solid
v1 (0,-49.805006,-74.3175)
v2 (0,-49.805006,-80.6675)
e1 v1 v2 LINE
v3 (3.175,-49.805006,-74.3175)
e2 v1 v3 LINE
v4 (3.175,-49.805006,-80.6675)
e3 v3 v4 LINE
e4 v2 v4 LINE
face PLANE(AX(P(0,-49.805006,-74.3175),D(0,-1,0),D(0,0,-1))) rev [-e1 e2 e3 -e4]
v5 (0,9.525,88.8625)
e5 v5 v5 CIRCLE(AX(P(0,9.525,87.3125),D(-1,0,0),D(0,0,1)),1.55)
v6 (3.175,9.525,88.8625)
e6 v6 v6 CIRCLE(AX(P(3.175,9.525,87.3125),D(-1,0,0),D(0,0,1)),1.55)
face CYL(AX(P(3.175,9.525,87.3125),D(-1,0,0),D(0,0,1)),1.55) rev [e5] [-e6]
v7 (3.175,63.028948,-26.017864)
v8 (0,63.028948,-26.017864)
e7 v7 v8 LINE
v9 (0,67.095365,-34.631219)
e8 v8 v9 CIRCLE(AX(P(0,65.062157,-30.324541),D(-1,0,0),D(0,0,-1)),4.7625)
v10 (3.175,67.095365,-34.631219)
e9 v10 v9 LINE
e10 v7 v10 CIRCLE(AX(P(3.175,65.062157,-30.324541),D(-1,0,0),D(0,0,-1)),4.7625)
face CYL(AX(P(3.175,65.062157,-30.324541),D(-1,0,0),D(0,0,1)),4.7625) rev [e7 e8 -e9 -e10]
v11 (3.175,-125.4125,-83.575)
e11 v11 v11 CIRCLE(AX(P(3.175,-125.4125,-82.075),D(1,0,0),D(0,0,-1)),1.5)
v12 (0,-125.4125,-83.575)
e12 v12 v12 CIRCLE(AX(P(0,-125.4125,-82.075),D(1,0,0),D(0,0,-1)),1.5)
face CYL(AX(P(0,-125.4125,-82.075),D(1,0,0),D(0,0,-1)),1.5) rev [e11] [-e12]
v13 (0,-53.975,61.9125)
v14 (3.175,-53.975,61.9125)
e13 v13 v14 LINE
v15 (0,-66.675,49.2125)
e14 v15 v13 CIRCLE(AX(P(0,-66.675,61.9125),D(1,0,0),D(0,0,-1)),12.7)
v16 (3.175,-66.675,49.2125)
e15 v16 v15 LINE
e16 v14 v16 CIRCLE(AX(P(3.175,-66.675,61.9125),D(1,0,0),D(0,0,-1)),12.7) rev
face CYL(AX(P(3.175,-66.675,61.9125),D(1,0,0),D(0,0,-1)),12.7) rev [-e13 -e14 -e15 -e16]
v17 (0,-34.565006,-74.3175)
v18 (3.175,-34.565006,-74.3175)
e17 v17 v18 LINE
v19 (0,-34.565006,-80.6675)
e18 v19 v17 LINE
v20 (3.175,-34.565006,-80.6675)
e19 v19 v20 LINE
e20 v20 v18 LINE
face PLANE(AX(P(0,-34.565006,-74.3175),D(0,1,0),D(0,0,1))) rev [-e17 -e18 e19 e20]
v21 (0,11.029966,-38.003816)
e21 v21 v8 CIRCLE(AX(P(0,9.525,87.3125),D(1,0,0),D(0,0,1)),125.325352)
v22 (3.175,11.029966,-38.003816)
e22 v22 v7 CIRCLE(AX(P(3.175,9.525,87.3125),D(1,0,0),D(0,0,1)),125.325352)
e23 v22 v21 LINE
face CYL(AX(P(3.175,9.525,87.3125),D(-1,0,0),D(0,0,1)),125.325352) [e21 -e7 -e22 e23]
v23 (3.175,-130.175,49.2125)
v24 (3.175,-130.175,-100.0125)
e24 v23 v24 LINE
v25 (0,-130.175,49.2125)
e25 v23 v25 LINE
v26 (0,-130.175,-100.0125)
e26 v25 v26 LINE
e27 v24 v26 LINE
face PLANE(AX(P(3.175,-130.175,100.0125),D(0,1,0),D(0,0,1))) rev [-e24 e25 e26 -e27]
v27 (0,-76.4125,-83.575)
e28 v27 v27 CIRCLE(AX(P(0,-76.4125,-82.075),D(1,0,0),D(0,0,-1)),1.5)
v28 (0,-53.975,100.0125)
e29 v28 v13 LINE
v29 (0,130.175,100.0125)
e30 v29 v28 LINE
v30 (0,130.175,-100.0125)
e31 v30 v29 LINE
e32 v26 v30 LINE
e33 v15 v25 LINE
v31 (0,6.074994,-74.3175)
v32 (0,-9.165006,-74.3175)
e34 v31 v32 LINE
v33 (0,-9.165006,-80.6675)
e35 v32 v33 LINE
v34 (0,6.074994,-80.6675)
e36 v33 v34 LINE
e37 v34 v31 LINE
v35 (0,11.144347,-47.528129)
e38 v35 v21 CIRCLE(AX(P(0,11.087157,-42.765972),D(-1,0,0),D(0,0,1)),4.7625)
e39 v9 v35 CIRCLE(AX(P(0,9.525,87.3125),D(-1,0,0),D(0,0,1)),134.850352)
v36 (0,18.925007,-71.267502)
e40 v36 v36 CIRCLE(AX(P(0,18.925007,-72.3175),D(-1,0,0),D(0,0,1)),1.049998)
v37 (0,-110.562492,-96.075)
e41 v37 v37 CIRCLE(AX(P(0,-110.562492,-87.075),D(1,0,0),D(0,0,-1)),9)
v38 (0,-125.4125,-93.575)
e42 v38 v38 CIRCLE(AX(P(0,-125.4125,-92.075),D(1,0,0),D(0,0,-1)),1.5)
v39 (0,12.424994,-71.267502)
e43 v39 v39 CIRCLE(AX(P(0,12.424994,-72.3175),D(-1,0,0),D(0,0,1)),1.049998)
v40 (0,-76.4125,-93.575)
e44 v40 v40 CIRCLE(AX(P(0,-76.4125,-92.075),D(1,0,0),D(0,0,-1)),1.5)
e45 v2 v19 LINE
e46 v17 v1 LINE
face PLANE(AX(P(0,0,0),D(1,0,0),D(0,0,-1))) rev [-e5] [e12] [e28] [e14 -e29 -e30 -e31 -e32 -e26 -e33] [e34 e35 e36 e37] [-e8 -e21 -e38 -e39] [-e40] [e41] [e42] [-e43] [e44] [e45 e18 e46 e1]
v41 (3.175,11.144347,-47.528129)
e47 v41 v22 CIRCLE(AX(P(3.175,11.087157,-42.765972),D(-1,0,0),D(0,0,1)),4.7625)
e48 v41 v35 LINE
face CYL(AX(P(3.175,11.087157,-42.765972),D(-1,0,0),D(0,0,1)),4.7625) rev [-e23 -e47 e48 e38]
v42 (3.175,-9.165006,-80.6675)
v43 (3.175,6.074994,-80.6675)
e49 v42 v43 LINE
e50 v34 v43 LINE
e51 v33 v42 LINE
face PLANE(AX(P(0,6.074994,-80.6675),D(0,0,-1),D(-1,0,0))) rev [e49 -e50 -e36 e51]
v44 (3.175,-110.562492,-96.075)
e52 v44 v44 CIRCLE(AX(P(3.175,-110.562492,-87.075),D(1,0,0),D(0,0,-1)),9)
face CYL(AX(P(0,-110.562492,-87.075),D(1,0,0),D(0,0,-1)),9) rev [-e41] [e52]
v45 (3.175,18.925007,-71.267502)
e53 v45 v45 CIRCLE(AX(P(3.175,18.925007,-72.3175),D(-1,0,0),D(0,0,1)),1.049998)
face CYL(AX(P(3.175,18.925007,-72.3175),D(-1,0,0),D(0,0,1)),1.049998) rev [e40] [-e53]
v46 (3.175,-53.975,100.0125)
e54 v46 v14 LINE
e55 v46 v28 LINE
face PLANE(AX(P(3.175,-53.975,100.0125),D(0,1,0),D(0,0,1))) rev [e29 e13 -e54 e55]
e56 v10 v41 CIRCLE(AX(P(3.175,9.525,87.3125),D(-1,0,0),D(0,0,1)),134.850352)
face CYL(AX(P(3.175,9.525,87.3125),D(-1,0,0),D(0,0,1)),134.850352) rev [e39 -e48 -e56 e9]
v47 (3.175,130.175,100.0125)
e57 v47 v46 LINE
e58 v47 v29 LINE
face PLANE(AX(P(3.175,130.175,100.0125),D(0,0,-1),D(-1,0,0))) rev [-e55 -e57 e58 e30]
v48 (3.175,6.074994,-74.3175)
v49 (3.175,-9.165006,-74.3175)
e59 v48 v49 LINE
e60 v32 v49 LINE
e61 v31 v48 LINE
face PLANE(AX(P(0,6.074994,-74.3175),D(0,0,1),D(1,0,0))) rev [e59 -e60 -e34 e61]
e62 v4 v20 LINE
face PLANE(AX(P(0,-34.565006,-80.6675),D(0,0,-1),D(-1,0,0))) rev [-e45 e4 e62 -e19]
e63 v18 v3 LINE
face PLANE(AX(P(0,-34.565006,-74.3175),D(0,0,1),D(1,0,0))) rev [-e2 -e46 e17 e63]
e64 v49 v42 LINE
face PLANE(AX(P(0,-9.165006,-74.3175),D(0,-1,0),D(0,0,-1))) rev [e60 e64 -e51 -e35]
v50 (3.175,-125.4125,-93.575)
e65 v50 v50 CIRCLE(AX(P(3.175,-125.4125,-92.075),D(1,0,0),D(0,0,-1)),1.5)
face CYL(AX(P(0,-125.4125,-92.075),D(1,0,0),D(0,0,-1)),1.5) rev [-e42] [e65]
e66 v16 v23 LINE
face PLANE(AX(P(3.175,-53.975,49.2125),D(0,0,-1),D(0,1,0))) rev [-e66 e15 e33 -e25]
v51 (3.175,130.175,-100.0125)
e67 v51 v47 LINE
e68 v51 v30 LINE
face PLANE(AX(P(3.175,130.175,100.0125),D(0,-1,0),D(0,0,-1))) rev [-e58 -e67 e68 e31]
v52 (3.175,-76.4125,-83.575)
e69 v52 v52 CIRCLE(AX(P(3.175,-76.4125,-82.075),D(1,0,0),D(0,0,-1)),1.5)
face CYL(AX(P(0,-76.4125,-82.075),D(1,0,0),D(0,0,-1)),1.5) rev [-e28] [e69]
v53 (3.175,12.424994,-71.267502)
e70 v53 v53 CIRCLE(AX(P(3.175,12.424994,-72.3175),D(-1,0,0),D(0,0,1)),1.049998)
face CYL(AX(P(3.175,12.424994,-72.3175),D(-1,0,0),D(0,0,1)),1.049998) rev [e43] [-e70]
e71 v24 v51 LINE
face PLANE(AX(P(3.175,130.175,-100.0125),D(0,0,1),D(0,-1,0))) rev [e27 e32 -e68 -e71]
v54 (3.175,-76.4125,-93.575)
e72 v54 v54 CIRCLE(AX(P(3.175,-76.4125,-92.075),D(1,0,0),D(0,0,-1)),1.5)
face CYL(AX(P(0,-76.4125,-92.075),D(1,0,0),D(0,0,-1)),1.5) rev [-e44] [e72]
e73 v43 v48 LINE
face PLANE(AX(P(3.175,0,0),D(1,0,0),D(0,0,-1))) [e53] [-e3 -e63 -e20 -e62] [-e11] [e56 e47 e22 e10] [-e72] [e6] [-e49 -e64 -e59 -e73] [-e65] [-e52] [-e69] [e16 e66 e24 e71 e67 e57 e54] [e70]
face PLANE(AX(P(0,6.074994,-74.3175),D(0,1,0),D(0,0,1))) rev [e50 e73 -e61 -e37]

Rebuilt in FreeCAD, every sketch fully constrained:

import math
import FreeCAD as App
import Part
import Sketcher
from FreeCAD import Vector
Q = App.Units.Quantity


def edges_at(feature, points):
    """Names of the edges that pass closest to the given points."""
    edges = feature.Shape.Edges
    near = lambda p: min(range(len(edges)), key=lambda i: edges[i].distToShape(Part.Vertex(*p))[0])
    return sorted({f"Edge{near(p) + 1}" for p in points})


def add_polygon(sketch, points):
    """Adds a closed chain of lines whose ends are joined by coincident constraints."""
    first, n = sketch.GeometryCount, len(points)
    for a, b in zip(points, points[1:] + points[:1]):
        sketch.addGeometry(Part.LineSegment(App.Vector(*a, 0), App.Vector(*b, 0)), False)
    for i in range(n):
        sketch.addConstraint(Sketcher.Constraint("Coincident", first + i, 2, first + (i + 1) % n, 1))

doc = App.newDocument("Part")
body = doc.addObject("PartDesign::Body", "Body")

sketch1 = doc.addObject("Sketcher::SketchObject", "Sketch")
body.addObject(sketch1)
sketch1.AttachmentSupport = (doc.YZ_Plane, [""])
sketch1.MapMode = "FlatFace"
add_polygon(sketch1, [(130, 100), (-130, 100), (-130, -100), (130, -100)])
sketch1.addConstraint(Sketcher.Constraint("Horizontal", 0))
sketch1.addConstraint(Sketcher.Constraint("Vertical", 1))
sketch1.addConstraint(Sketcher.Constraint("Horizontal", 2))
sketch1.addConstraint(Sketcher.Constraint("Vertical", 3))
sketch1.addConstraint(Sketcher.Constraint("Symmetric", 0, 2, 2, 2, -1, 1))
sketch1.addConstraint(Sketcher.Constraint("DistanceX", 0, 2, 0, 1, Q("10.25 in")))
sketch1.addConstraint(Sketcher.Constraint("DistanceY", 1, 2, 1, 1, Q("7.875 in")))
pad1 = doc.addObject("PartDesign::Pad", "Pad")
body.addObject(pad1)
pad1.Profile = sketch1
pad1.Length = Q("0.125 in")

sketch2 = doc.addObject("Sketcher::SketchObject", "Sketch001")
body.addObject(sketch2)
sketch2.AttachmentSupport = (doc.YZ_Plane, [""])
sketch2.MapMode = "FlatFace"
sketch2.addGeometry(Part.Circle(Vector(9.5, 87.3, 0), Vector(0, 0, 1), 1.6), False)
sketch2.addGeometry(Part.Circle(Vector(18.9, -72.3, 0), Vector(0, 0, 1), 1), False)
sketch2.addGeometry(Part.Circle(Vector(12.4, -72.3, 0), Vector(0, 0, 1), 1), False)
sketch2.addConstraint(Sketcher.Constraint("Equal", 1, 2))
sketch2.addConstraint(Sketcher.Constraint("Horizontal", 1, 3, 2, 3))
sketch2.addConstraint(Sketcher.Constraint("Diameter", 0, Q("3.1 mm")))
sketch2.addConstraint(Sketcher.Constraint("DistanceX", -1, 1, 0, 3, Q("0.375 in")))
sketch2.addConstraint(Sketcher.Constraint("DistanceY", -1, 1, 0, 3, Q("3.4375 in")))
sketch2.addConstraint(Sketcher.Constraint("Diameter", 1, Q("2.099996 mm")))
sketch2.addConstraint(Sketcher.Constraint("DistanceY", 1, 3, -1, 1, Q("72.3175 mm")))
sketch2.addConstraint(Sketcher.Constraint("DistanceX", -1, 1, 1, 3, Q("18.925007 mm")))
sketch2.addConstraint(Sketcher.Constraint("DistanceX", -1, 1, 2, 3, Q("12.424994 mm")))
pocket1 = doc.addObject("PartDesign::Pocket", "Pocket")
body.addObject(pocket1)
pocket1.Profile = sketch2
pocket1.Type = "ThroughAll"
pocket1.Reversed = True

sketch3 = doc.addObject("Sketcher::SketchObject", "Sketch002")
body.addObject(sketch3)
sketch3.AttachmentSupport = (doc.YZ_Plane, [""])
sketch3.MapMode = "FlatFace"
add_polygon(sketch3, [(-54, 49), (-130, 49), (-130, 100), (-54, 100)])
sketch3.addConstraint(Sketcher.Constraint("Horizontal", 0))
sketch3.addConstraint(Sketcher.Constraint("Vertical", 1))
sketch3.addConstraint(Sketcher.Constraint("Horizontal", 2))
sketch3.addConstraint(Sketcher.Constraint("Vertical", 3))
sketch3.addConstraint(Sketcher.Constraint("DistanceX", 0, 2, 0, 1, Q("3 in")))
sketch3.addConstraint(Sketcher.Constraint("DistanceY", 1, 1, 1, 2, Q("2 in")))
sketch3.addConstraint(Sketcher.Constraint("DistanceX", 0, 2, -1, 1, Q("5.125 in")))
sketch3.addConstraint(Sketcher.Constraint("DistanceY", -1, 1, 0, 2, Q("1.9375 in")))
pocket2 = doc.addObject("PartDesign::Pocket", "Pocket001")
body.addObject(pocket2)
pocket2.Profile = sketch3
pocket2.Type = "ThroughAll"
pocket2.Reversed = True
doc.recompute()

fillet = doc.addObject("PartDesign::Fillet", "Fillet")
body.addObject(fillet)
fillet.Base = (pocket2, edges_at(pocket2, [(1.587, -53.975, 49.212)]))
fillet.Radius = Q("0.5 in")

sketch4 = doc.addObject("Sketcher::SketchObject", "Sketch003")
body.addObject(sketch4)
sketch4.AttachmentSupport = (doc.YZ_Plane, [""])
sketch4.MapMode = "FlatFace"
sketch4.addGeometry(Part.ArcOfCircle(Part.Circle(Vector(9.5, 87.3, 0), Vector(0, 0, 1), 134.9), math.radians(-89), math.radians(-65)), False)
sketch4.addGeometry(Part.ArcOfCircle(Part.Circle(Vector(11.1, -42.8, 0), Vector(0, 0, 1), 4.8), math.radians(91), math.radians(271)), False)
sketch4.addGeometry(Part.ArcOfCircle(Part.Circle(Vector(9.5, 87.3, 0), Vector(0, 0, 1), 125.3), math.radians(-89), math.radians(-65)), False)
sketch4.addGeometry(Part.ArcOfCircle(Part.Circle(Vector(65.1, -30.3, 0), Vector(0, 0, 1), 4.8), math.radians(-65), math.radians(115)), False)
sketch4.addConstraint(Sketcher.Constraint("Tangent", 0, 1, 1, 2))
sketch4.addConstraint(Sketcher.Constraint("Tangent", 1, 1, 2, 1))
sketch4.addConstraint(Sketcher.Constraint("Tangent", 2, 2, 3, 2))
sketch4.addConstraint(Sketcher.Constraint("Tangent", 3, 1, 0, 2))
sketch4.addConstraint(Sketcher.Constraint("Coincident", 2, 3, 0, 3))
sketch4.addConstraint(Sketcher.Constraint("Radius", 1, Q("0.1875 in")))
sketch4.addConstraint(Sketcher.Constraint("DistanceX", -1, 1, 0, 3, Q("0.375 in")))
sketch4.addConstraint(Sketcher.Constraint("DistanceY", -1, 1, 0, 3, Q("3.4375 in")))
sketch4.addConstraint(Sketcher.Constraint("DistanceX", 1, 3, 3, 3, Q("2.125 in")))
sketch4.addConstraint(Sketcher.Constraint("Radius", 0, Q("134.850352 mm")))
sketch4.addConstraint(Sketcher.Constraint("DistanceX", 1, 1, 3, 1, Q("56.065399 mm")))
pocket3 = doc.addObject("PartDesign::Pocket", "Pocket002")
body.addObject(pocket3)
pocket3.Profile = sketch4
pocket3.Type = "ThroughAll"
pocket3.Reversed = True

sketch5 = doc.addObject("Sketcher::SketchObject", "Sketch004")
body.addObject(sketch5)
sketch5.AttachmentSupport = (doc.YZ_Plane, [""])
sketch5.MapMode = "FlatFace"
sketch5.AttachmentOffset = App.Placement(Vector(0, 0, 0.125 * 25.4), App.Rotation())
add_polygon(sketch5, [(6, -74), (-9, -74), (-9, -81), (6, -81)])
add_polygon(sketch5, [(-35, -74), (-50, -74), (-50, -81), (-35, -81)])
sketch5.addConstraint(Sketcher.Constraint("Horizontal", 0))
sketch5.addConstraint(Sketcher.Constraint("Vertical", 1))
sketch5.addConstraint(Sketcher.Constraint("Horizontal", 2))
sketch5.addConstraint(Sketcher.Constraint("Vertical", 3))
sketch5.addConstraint(Sketcher.Constraint("Horizontal", 4))
sketch5.addConstraint(Sketcher.Constraint("Vertical", 5))
sketch5.addConstraint(Sketcher.Constraint("Horizontal", 6))
sketch5.addConstraint(Sketcher.Constraint("Vertical", 7))
sketch5.addConstraint(Sketcher.Constraint("Horizontal", 3, 2, 4, 2))
sketch5.addConstraint(Sketcher.Constraint("Horizontal", 2, 2, 5, 2))
sketch5.addConstraint(Sketcher.Constraint("Equal", 2, 4))
sketch5.addConstraint(Sketcher.Constraint("DistanceX", 0, 2, 0, 1, Q("0.6 in")))
sketch5.addConstraint(Sketcher.Constraint("DistanceX", 6, 2, 1, 2, Q("1 in")))
sketch5.addConstraint(Sketcher.Constraint("DistanceY", 1, 2, 1, 1, Q("0.25 in")))
sketch5.addConstraint(Sketcher.Constraint("DistanceY", 0, 2, -1, 1, Q("74.3175 mm")))
sketch5.addConstraint(Sketcher.Constraint("DistanceX", 0, 2, -1, 1, Q("9.165006 mm")))
pocket4 = doc.addObject("PartDesign::Pocket", "Pocket003")
body.addObject(pocket4)
pocket4.Profile = sketch5
pocket4.Type = "ThroughAll"

sketch6 = doc.addObject("Sketcher::SketchObject", "Sketch005")
body.addObject(sketch6)
sketch6.AttachmentSupport = (doc.YZ_Plane, [""])
sketch6.MapMode = "FlatFace"
sketch6.AttachmentOffset = App.Placement(Vector(0, 0, 0.125 * 25.4), App.Rotation())
sketch6.addGeometry(Part.Circle(Vector(-125.4, -82.1, 0), Vector(0, 0, 1), 1.5), False)
sketch6.addGeometry(Part.Circle(Vector(-76.4, -82.1, 0), Vector(0, 0, 1), 1.5), False)
sketch6.addGeometry(Part.Circle(Vector(-125.4, -92.1, 0), Vector(0, 0, 1), 1.5), False)
sketch6.addGeometry(Part.Circle(Vector(-76.4, -92.1, 0), Vector(0, 0, 1), 1.5), False)
sketch6.addGeometry(Part.Circle(Vector(-110.6, -87.1, 0), Vector(0, 0, 1), 9), False)
sketch6.addConstraint(Sketcher.Constraint("Equal", 0, 1))
sketch6.addConstraint(Sketcher.Constraint("Equal", 1, 2))
sketch6.addConstraint(Sketcher.Constraint("Equal", 2, 3))
sketch6.addConstraint(Sketcher.Constraint("Horizontal", 0, 3, 1, 3))
sketch6.addConstraint(Sketcher.Constraint("Horizontal", 2, 3, 3, 3))
sketch6.addConstraint(Sketcher.Constraint("Vertical", 0, 3, 2, 3))
sketch6.addConstraint(Sketcher.Constraint("Vertical", 1, 3, 3, 3))
sketch6.addConstraint(Sketcher.Constraint("Diameter", 0, Q("3 mm")))
sketch6.addConstraint(Sketcher.Constraint("Diameter", 4, Q("18 mm")))
sketch6.addConstraint(Sketcher.Constraint("DistanceX", 0, 3, -1, 1, Q("4.9375 in")))
sketch6.addConstraint(Sketcher.Constraint("DistanceY", 2, 3, -1, 1, Q("3.625 in")))
sketch6.addConstraint(Sketcher.Constraint("DistanceY", 0, 3, -1, 1, Q("82.075 mm")))
sketch6.addConstraint(Sketcher.Constraint("DistanceX", 1, 3, -1, 1, Q("76.4125 mm")))
sketch6.addConstraint(Sketcher.Constraint("DistanceY", 4, 3, -1, 1, Q("87.075 mm")))
sketch6.addConstraint(Sketcher.Constraint("DistanceX", 4, 3, -1, 1, Q("110.562492 mm")))
pocket5 = doc.addObject("PartDesign::Pocket", "Pocket004")
body.addObject(pocket5)
pocket5.Profile = sketch6
pocket5.Type = "ThroughAll"

doc.recompute()
